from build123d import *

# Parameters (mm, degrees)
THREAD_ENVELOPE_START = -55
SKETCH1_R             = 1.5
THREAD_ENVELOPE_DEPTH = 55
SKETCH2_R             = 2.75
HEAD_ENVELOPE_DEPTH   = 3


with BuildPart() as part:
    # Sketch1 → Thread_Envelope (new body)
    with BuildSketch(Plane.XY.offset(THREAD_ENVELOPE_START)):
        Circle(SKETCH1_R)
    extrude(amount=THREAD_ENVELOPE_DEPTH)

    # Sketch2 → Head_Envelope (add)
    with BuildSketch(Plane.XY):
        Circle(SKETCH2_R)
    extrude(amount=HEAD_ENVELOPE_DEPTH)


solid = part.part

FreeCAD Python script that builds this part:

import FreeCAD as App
import Part
import Sketcher
from FreeCAD import Vector
Q = App.Units.Quantity

doc = App.newDocument("Part")
params = doc.addObject("Spreadsheet::Sheet", "Params")
for row, (alias, value) in enumerate([
    ("sketch1_diameter", "3 mm"),
    ("pad1_length", "55 mm"),
    ("sketch2_diameter", "5.5 mm"),
    ("pad2_length", "3 mm"),
], start=1):
    params.set(f"A{row}", alias)
    params.set(f"B{row}", "=" + value)
    params.setAlias(f"B{row}", alias)

body = doc.addObject("PartDesign::Body", "Body")

# Sketch on XY plane
sketch1 = body.newObject("Sketcher::SketchObject", "Sketch")
sketch1.AttachmentSupport = (doc.getObject("XY_Plane"), [""])
sketch1.MapMode = "FlatFace"
sketch1.AttachmentOffset = App.Placement(Vector(0, 0, -55), App.Rotation())
sketch1.addGeometry(Part.Circle(Vector(0, 0, 0), Vector(0, 0, 1), 1.5), False)
sketch1.addConstraint([
    Sketcher.Constraint("Coincident", 0, 3, -1, 1),
    Sketcher.Constraint("Diameter", 0, Q("3 mm")),
])
sketch1.setExpression("Constraints[1]", "Params.sketch1_diameter")
pad1 = body.newObject("PartDesign::Pad", "Pad")
pad1.Profile = sketch1
pad1.setExpression("Length", "Params.pad1_length")

# Sketch on XY plane
sketch2 = body.newObject("Sketcher::SketchObject", "Sketch001")
sketch2.AttachmentSupport = (doc.getObject("XY_Plane"), [""])
sketch2.MapMode = "FlatFace"
sketch2.addGeometry(Part.Circle(Vector(0, 0, 0), Vector(0, 0, 1), 2.8), False)
sketch2.addConstraint([
    Sketcher.Constraint("Coincident", 0, 3, -1, 1),
    Sketcher.Constraint("Diameter", 0, Q("5.5 mm")),
])
sketch2.setExpression("Constraints[1]", "Params.sketch2_diameter")
pad2 = body.newObject("PartDesign::Pad", "Pad001")
pad2.Profile = sketch2
pad2.setExpression("Length", "Params.pad2_length")

doc.recompute()
